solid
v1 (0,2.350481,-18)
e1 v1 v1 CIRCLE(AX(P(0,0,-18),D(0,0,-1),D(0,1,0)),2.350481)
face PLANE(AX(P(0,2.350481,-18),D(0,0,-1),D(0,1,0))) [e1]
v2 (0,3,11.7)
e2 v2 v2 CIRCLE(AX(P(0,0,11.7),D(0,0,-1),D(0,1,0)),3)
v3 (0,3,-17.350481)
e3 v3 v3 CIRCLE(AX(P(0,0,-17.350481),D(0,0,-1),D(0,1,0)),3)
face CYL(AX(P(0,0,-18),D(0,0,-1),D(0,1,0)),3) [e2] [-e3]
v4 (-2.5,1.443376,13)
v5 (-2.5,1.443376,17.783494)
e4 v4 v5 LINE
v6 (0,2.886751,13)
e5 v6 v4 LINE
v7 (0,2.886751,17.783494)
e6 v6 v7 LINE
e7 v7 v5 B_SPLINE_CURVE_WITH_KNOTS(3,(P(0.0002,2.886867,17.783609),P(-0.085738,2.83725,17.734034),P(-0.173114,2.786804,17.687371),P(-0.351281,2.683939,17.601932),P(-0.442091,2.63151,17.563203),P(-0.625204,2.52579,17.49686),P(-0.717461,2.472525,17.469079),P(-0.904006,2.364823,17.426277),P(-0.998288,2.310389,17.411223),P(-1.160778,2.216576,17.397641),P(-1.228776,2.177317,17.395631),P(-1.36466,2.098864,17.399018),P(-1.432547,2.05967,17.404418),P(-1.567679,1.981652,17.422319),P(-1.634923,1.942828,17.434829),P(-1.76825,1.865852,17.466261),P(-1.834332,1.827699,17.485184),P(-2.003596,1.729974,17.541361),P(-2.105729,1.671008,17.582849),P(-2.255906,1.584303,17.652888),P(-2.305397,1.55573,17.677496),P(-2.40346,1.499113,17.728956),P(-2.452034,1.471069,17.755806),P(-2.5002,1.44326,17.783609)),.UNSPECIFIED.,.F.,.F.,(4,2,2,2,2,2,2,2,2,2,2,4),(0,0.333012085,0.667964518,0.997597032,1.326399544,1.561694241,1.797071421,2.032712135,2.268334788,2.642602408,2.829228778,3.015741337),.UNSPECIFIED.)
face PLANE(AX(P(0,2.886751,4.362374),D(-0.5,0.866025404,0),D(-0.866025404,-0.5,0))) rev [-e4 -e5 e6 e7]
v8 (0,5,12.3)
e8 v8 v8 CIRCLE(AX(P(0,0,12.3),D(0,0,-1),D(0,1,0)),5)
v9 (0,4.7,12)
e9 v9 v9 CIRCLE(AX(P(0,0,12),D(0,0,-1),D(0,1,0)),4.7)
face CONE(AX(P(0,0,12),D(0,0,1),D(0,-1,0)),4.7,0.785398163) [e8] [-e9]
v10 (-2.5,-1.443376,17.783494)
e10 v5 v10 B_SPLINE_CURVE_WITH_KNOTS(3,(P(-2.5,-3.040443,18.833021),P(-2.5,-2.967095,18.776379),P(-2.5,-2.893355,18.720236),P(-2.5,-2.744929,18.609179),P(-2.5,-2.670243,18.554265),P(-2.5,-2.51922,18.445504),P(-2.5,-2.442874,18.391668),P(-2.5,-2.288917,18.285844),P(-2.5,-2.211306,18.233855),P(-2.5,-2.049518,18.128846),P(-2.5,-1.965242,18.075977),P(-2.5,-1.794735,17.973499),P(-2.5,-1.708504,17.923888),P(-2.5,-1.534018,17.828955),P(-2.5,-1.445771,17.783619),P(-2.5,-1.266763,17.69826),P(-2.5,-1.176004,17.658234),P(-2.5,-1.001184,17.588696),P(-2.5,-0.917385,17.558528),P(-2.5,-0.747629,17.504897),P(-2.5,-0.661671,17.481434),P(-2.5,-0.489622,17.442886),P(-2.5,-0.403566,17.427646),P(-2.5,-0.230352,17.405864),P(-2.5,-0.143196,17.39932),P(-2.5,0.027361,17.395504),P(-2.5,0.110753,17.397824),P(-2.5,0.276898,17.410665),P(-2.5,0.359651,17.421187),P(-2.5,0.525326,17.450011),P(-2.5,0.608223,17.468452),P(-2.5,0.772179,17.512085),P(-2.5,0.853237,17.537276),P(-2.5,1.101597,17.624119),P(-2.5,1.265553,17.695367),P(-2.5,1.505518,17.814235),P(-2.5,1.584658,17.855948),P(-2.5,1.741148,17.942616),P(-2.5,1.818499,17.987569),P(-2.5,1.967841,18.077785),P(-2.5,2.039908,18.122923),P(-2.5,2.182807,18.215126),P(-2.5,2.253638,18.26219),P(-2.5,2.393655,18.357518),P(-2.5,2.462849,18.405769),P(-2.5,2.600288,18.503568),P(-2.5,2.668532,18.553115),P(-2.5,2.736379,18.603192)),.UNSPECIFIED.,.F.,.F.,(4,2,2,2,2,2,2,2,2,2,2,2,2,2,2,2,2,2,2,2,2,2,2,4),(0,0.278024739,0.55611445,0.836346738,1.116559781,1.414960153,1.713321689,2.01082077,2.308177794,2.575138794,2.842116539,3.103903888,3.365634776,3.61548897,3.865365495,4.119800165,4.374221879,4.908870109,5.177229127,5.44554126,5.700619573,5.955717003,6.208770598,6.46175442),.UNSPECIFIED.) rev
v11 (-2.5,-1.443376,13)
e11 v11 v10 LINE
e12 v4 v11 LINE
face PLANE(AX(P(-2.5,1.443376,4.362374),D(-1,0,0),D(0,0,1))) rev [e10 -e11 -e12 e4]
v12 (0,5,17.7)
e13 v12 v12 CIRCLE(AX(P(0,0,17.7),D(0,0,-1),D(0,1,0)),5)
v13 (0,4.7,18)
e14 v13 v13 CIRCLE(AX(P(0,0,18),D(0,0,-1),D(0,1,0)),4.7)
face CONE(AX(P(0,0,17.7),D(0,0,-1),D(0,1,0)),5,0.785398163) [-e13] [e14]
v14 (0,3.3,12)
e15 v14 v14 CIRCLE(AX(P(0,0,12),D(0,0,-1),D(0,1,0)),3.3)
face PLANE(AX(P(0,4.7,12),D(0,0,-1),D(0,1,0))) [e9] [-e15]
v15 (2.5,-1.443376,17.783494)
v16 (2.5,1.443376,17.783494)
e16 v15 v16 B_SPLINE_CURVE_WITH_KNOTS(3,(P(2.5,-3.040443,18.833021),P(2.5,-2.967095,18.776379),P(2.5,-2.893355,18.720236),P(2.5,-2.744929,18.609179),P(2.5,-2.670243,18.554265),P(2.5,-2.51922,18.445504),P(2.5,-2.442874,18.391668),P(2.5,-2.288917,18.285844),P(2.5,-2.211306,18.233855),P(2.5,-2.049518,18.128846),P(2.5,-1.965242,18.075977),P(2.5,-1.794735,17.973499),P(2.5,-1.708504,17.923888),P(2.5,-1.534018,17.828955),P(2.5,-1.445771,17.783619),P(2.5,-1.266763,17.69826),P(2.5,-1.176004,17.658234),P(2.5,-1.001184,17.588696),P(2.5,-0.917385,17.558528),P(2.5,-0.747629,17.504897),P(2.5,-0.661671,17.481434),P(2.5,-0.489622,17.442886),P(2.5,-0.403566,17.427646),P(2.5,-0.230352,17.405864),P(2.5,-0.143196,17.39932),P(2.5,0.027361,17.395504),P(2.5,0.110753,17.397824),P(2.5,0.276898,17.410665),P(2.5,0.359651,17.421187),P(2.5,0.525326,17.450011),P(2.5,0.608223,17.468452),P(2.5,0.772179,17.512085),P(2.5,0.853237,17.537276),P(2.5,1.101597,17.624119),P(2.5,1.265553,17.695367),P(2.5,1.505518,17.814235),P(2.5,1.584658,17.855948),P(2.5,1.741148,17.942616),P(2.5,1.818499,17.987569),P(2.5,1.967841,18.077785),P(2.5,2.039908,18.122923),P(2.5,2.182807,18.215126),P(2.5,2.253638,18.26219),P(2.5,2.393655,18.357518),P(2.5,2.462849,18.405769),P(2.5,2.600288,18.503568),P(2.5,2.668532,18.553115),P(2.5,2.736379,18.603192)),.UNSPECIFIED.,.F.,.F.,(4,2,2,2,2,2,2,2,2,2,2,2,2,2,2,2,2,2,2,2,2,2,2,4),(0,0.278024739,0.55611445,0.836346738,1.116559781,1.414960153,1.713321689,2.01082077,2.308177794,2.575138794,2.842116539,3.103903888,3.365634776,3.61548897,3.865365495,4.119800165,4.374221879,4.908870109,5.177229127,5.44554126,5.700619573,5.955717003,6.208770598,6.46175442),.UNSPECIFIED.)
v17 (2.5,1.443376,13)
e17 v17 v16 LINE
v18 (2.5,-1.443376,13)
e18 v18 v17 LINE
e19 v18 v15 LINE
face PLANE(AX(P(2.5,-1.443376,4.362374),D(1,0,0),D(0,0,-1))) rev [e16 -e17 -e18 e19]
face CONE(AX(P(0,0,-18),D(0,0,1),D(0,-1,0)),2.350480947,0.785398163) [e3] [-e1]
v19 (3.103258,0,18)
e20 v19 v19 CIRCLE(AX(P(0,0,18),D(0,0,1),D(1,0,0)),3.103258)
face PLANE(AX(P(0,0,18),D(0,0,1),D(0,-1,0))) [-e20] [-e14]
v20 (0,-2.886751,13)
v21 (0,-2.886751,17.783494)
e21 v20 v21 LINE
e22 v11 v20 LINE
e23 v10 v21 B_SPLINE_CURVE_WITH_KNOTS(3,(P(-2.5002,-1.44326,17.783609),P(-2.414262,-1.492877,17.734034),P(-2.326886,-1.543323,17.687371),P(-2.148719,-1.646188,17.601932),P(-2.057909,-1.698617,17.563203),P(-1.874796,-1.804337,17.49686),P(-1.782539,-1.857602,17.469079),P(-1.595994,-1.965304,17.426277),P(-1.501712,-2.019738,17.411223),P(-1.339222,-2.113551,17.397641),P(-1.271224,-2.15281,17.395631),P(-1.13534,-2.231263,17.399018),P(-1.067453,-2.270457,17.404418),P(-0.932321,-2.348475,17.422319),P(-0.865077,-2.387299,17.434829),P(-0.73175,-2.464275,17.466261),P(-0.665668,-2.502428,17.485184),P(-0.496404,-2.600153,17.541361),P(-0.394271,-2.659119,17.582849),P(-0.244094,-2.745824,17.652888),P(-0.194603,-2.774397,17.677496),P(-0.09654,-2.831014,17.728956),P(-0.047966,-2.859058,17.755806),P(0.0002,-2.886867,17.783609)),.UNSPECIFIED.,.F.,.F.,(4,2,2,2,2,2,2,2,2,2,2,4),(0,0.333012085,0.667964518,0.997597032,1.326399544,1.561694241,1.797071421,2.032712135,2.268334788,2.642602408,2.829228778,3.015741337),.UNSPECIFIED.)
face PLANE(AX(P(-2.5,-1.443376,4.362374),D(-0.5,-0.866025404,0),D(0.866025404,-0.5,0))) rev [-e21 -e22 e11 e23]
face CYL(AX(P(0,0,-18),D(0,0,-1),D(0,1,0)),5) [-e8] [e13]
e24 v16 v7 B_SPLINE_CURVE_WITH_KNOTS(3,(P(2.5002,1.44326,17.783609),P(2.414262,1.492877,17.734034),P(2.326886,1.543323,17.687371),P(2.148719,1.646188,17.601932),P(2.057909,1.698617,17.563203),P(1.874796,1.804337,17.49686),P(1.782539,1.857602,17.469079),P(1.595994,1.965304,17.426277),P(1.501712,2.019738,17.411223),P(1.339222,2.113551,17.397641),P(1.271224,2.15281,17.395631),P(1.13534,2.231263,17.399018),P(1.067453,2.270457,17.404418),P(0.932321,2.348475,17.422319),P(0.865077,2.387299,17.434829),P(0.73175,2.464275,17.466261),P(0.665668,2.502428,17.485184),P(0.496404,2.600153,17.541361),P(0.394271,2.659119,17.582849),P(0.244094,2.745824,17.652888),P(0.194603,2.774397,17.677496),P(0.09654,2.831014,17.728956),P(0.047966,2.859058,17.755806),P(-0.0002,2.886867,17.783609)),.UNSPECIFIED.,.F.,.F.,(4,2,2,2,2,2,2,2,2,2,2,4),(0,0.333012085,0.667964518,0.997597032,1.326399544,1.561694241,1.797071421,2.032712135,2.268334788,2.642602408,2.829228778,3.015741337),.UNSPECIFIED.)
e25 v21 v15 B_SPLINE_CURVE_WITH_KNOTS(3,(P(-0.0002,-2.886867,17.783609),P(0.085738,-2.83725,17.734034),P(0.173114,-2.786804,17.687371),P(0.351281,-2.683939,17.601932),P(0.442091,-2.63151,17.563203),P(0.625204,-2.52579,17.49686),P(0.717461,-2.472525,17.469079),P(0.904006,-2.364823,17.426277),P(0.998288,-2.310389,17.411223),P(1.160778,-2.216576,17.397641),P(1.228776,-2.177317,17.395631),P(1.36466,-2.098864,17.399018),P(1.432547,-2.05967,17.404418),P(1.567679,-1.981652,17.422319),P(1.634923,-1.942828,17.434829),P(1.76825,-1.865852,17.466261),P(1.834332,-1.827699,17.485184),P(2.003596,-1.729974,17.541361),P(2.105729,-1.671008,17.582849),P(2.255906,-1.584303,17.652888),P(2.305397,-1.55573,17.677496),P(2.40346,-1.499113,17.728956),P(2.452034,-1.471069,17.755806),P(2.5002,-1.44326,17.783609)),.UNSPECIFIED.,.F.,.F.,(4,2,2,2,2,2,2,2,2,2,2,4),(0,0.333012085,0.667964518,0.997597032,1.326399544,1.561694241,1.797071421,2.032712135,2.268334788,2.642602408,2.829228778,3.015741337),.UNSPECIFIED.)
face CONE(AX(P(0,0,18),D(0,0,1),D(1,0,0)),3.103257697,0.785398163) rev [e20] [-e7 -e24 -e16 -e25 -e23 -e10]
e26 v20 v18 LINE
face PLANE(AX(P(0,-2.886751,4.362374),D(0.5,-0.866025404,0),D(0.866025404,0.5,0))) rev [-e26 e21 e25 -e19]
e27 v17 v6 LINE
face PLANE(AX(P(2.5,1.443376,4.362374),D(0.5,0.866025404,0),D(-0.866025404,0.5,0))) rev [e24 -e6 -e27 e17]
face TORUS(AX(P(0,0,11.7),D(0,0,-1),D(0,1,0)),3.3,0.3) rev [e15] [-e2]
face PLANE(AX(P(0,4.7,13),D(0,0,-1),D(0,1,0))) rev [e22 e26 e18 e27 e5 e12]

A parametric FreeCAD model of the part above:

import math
import FreeCAD as App
import Part
import Sketcher
from FreeCAD import Vector
Q = App.Units.Quantity


def faces_at(feature, points):
    """Names of the faces that lie closest to the given points."""
    faces = feature.Shape.Faces
    near = lambda p: min(range(len(faces)), key=lambda i: faces[i].distToShape(Part.Vertex(*p))[0])
    return sorted({f"Face{near(p) + 1}" for p in points})


def add_polygon(sketch, points):
    """Adds a closed chain of lines whose ends are joined by coincident constraints."""
    first, n = sketch.GeometryCount, len(points)
    for a, b in zip(points, points[1:] + points[:1]):
        sketch.addGeometry(Part.LineSegment(App.Vector(*a, 0), App.Vector(*b, 0)), False)
    for i in range(n):
        sketch.addConstraint(Sketcher.Constraint("Coincident", first + i, 2, first + (i + 1) % n, 1))

doc = App.newDocument("Part")
params = doc.addObject("Spreadsheet::Sheet", "Params")
for row, (alias, value) in enumerate([
    ("sketch1_radius", "0.3 mm"),
    ("sketch1_height", "36 mm"),
    ("sketch1_width", "4.7 mm"),
    ("sketch1_width2", "1.4 mm"),
    ("sketch1_height2", "5.4 mm"),
    ("revolution_angle", "360 deg"),
    ("pocket1_length", "5 mm"),
    ("pad1_length", "5 mm"),
    ("draft_angle", "45 deg"),
], start=1):
    params.set(f"A{row}", alias)
    params.set(f"B{row}", "=" + value)
    params.setAlias(f"B{row}", alias)

body = doc.addObject("PartDesign::Body", "Body")

sketch1 = body.newObject("Sketcher::SketchObject", "Sketch")
sketch1.AttachmentSupport = (doc.getObject("YZ_Plane"), [""])
sketch1.MapMode = "FlatFace"
sketch1.addGeometry(Part.LineSegment(Vector(4.7, 18, 0), Vector(0, 18, 0)), False)
sketch1.addGeometry(Part.LineSegment(Vector(0, 18, 0), Vector(0, -18, 0)), False)
sketch1.addGeometry(Part.LineSegment(Vector(0, -18, 0), Vector(2.35, -18, 0)), False)
sketch1.addGeometry(Part.LineSegment(Vector(2.35, -18, 0), Vector(3, -17.35, 0)), False)
sketch1.addGeometry(Part.LineSegment(Vector(3, -17.35, 0), Vector(3, 11.7, 0)), False)
sketch1.addGeometry(Part.ArcOfCircle(Part.Circle(Vector(3.3, 11.7, 0), Vector(0, 0, 1), 0.3), math.radians(90), math.radians(180)), False)
sketch1.addGeometry(Part.LineSegment(Vector(3.3, 12, 0), Vector(4.7, 12, 0)), False)
sketch1.addGeometry(Part.LineSegment(Vector(4.7, 12, 0), Vector(5, 12.3, 0)), False)
sketch1.addGeometry(Part.LineSegment(Vector(5, 12.3, 0), Vector(5, 17.7, 0)), False)
sketch1.addGeometry(Part.LineSegment(Vector(5, 17.7, 0), Vector(4.7, 18, 0)), False)
sketch1.addConstraint(Sketcher.Constraint("Coincident", 0, 2, 1, 1))
sketch1.addConstraint(Sketcher.Constraint("Coincident", 1, 2, 2, 1))
sketch1.addConstraint(Sketcher.Constraint("Coincident", 2, 2, 3, 1))
sketch1.addConstraint(Sketcher.Constraint("Coincident", 3, 2, 4, 1))
sketch1.addConstraint(Sketcher.Constraint("Tangent", 4, 2, 5, 2))
sketch1.addConstraint(Sketcher.Constraint("Tangent", 5, 1, 6, 1))
sketch1.addConstraint(Sketcher.Constraint("Coincident", 6, 2, 7, 1))
sketch1.addConstraint(Sketcher.Constraint("Coincident", 7, 2, 8, 1))
sketch1.addConstraint(Sketcher.Constraint("Coincident", 8, 2, 9, 1))
sketch1.addConstraint(Sketcher.Constraint("Coincident", 9, 2, 0, 1))
sketch1.addConstraint(Sketcher.Constraint("Horizontal", 0))
sketch1.addConstraint(Sketcher.Constraint("Vertical", 1))
sketch1.addConstraint(Sketcher.Constraint("Horizontal", 2))
sketch1.addConstraint(Sketcher.Constraint("Vertical", 4))
sketch1.addConstraint(Sketcher.Constraint("Horizontal", 6))
sketch1.addConstraint(Sketcher.Constraint("Vertical", 8))
sketch1.addConstraint(Sketcher.Constraint("Symmetric", 0, 2, 1, 2, -1, 1))
sketch1.addConstraint(Sketcher.Constraint("Parallel", 3, 7))
sketch1.addConstraint(Sketcher.Constraint("Perpendicular", 7, 9))
sketch1.addConstraint(Sketcher.Constraint("Vertical", 6, 2, 9, 2))
sketch1.addConstraint(Sketcher.Constraint("Equal", 7, 9))
sketch1.addConstraint(Sketcher.Constraint("Radius", 5, 0.3))
sketch1.addConstraint(Sketcher.Constraint("DistanceY", 1, 2, 1, 1, 36.0))
sketch1.addConstraint(Sketcher.Constraint("DistanceX", 0, 2, 0, 1, 4.7))
sketch1.addConstraint(Sketcher.Constraint("DistanceX", 6, 1, 6, 2, 1.4))
sketch1.addConstraint(Sketcher.Constraint("DistanceY", 8, 1, 8, 2, 5.4))
sketch1.addConstraint(Sketcher.Constraint("DistanceY", -1, 1, 5, 1, 12.0))
sketch1.addConstraint(Sketcher.Constraint("DistanceX", 2, 1, 2, 2, 2.350481))
sketch1.setExpression("Constraints[21]", "Params.sketch1_radius")
sketch1.setExpression("Constraints[22]", "Params.sketch1_height")
sketch1.setExpression("Constraints[23]", "Params.sketch1_width")
sketch1.setExpression("Constraints[24]", "Params.sketch1_width2")
sketch1.setExpression("Constraints[25]", "Params.sketch1_height2")
revolution = body.newObject("PartDesign::Revolution", "Revolution")
revolution.Profile = sketch1
revolution.ReferenceAxis = (sketch1, ["V_Axis"])
revolution.setExpression("Angle", "Params.revolution_angle")

sketch2 = body.newObject("Sketcher::SketchObject", "Sketch001")
sketch2.AttachmentSupport = (doc.getObject("XY_Plane"), [""])
sketch2.MapMode = "FlatFace"
sketch2.AttachmentOffset = App.Placement(Vector(0, 0, 18), App.Rotation())
add_polygon(sketch2, [(2.5, -1.4), (2.5, 1.4), (0, 2.9), (-2.5, 1.4), (-2.5, -1.4), (0, -2.9)])
sketch2.addConstraint(Sketcher.Constraint("Vertical", 0))
sketch2.addConstraint(Sketcher.Constraint("Vertical", 3))
sketch2.addConstraint(Sketcher.Constraint("Symmetric", 0, 2, 3, 2, -1, 1))
sketch2.addConstraint(Sketcher.Constraint("Symmetric", 1, 2, 4, 2, -1, 1))
sketch2.addConstraint(Sketcher.Constraint("PointOnObject", 1, 2, -2))
sketch2.addConstraint(Sketcher.Constraint("Parallel", 2, 5))
sketch2.addConstraint(Sketcher.Constraint("Horizontal", 0, 2, 2, 2))
sketch2.addConstraint(Sketcher.Constraint("Angle", 1, Q("150 deg")))
sketch2.addConstraint(Sketcher.Constraint("DistanceX", 2, 2, 0, 2, 5.0))
sketch2.addConstraint(Sketcher.Constraint("DistanceY", 0, 1, 0, 2, 2.886751))
pocket1 = body.newObject("PartDesign::Pocket", "Pocket")
pocket1.Profile = sketch2
pocket1.setExpression("Length", "Params.pocket1_length")
body2 = doc.addObject("PartDesign::Body", "Body001")

sketch3 = body2.newObject("Sketcher::SketchObject", "Sketch002")
sketch3.AttachmentSupport = (doc.getObject("XY_Plane001"), [""])
sketch3.MapMode = "FlatFace"
sketch3.AttachmentOffset = App.Placement(Vector(0, 0, 18), App.Rotation())
sketch3.addGeometry(Part.Circle(Vector(0, 0, 0), Vector(0, 0, 1), 3.1), False)
sketch3.addConstraint(Sketcher.Constraint("Coincident", 0, 3, -1, 1))
sketch3.addConstraint(Sketcher.Constraint("Diameter", 0, 6.206515))
pad1 = body2.newObject("PartDesign::Pad", "Pad")
pad1.Profile = sketch3
pad1.setExpression("Length", "Params.pad1_length")
pad1.Reversed = True
doc.recompute()

datumplane = body2.newObject("PartDesign::Plane", "DatumPlane")
datumplane.AttachmentSupport = (doc.getObject("XY_Plane001"), [""])
datumplane.MapMode = "FlatFace"
datumplane.AttachmentOffset = App.Placement(Vector(0, 0, 18), App.Rotation())
draft = body2.newObject("PartDesign::Draft", "Draft")
draft.Base = (pad1, faces_at(pad1, [(-3.103, 0, 15.5)]))
draft.NeutralPlane = (datumplane, [""])
draft.setExpression("Angle", "Params.draft_angle")
draft.Reversed = True
doc.recompute()

boolean = body.newObject("PartDesign::Boolean", "Boolean")
boolean.Type = "Cut"
boolean.addObjects([body2])

doc.recompute()
